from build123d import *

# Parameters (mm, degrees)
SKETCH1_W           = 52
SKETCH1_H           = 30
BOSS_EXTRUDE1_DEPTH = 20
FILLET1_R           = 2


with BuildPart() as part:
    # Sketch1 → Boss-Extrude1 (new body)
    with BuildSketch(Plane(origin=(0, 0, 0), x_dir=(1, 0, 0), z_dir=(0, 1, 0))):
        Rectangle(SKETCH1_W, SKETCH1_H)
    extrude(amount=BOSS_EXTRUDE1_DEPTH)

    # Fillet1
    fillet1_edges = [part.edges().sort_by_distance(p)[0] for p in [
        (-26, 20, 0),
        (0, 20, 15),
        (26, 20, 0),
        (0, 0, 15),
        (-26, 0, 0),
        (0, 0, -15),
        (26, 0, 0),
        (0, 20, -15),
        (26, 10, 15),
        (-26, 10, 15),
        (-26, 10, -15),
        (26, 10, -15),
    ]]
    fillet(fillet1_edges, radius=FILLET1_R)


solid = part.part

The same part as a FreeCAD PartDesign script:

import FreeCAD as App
import Part
import Sketcher
Q = App.Units.Quantity

doc = App.newDocument("Part")
body = doc.addObject("PartDesign::Body", "Body")

sketch1 = body.newObject("Sketcher::SketchObject", "Sketch")
sketch1.AttachmentSupport = (doc.getObject("XZ_Plane"), [""])
sketch1.MapMode = "FlatFace"
sketch1.addGeometry([
    Part.LineSegment(App.Vector(-26, -15, 0), App.Vector(-26, 15, 0)),
    Part.LineSegment(App.Vector(-26, 15, 0), App.Vector(26, 15, 0)),
    Part.LineSegment(App.Vector(26, 15, 0), App.Vector(26, -15, 0)),
    Part.LineSegment(App.Vector(26, -15, 0), App.Vector(-26, -15, 0)),
], False)
sketch1.addConstraint([
    Sketcher.Constraint("Coincident", 0, 2, 1, 1),
    Sketcher.Constraint("Coincident", 1, 2, 2, 1),
    Sketcher.Constraint("Coincident", 2, 2, 3, 1),
    Sketcher.Constraint("Coincident", 3, 2, 0, 1),
    Sketcher.Constraint("Vertical", 0),
    Sketcher.Constraint("Horizontal", 1),
    Sketcher.Constraint("Vertical", 2),
    Sketcher.Constraint("Horizontal", 3),
    Sketcher.Constraint("Symmetric", 0, 2, 2, 2, -1, 1),
    Sketcher.Constraint("DistanceX", 1, 1, 1, 2, Q("52 mm")),
    Sketcher.Constraint("DistanceY", 0, 1, 0, 2, Q("30 mm")),
])
pad1 = body.newObject("PartDesign::Pad", "Pad")
pad1.Profile = sketch1
pad1.Length = 20
pad1.Reversed = True
doc.recompute()

fillet = body.newObject("PartDesign::Fillet", "Fillet")
fillet.Base = (pad1, ["Edge1"])
fillet.UseAllEdges = True
fillet.Radius = 2

doc.recompute()
